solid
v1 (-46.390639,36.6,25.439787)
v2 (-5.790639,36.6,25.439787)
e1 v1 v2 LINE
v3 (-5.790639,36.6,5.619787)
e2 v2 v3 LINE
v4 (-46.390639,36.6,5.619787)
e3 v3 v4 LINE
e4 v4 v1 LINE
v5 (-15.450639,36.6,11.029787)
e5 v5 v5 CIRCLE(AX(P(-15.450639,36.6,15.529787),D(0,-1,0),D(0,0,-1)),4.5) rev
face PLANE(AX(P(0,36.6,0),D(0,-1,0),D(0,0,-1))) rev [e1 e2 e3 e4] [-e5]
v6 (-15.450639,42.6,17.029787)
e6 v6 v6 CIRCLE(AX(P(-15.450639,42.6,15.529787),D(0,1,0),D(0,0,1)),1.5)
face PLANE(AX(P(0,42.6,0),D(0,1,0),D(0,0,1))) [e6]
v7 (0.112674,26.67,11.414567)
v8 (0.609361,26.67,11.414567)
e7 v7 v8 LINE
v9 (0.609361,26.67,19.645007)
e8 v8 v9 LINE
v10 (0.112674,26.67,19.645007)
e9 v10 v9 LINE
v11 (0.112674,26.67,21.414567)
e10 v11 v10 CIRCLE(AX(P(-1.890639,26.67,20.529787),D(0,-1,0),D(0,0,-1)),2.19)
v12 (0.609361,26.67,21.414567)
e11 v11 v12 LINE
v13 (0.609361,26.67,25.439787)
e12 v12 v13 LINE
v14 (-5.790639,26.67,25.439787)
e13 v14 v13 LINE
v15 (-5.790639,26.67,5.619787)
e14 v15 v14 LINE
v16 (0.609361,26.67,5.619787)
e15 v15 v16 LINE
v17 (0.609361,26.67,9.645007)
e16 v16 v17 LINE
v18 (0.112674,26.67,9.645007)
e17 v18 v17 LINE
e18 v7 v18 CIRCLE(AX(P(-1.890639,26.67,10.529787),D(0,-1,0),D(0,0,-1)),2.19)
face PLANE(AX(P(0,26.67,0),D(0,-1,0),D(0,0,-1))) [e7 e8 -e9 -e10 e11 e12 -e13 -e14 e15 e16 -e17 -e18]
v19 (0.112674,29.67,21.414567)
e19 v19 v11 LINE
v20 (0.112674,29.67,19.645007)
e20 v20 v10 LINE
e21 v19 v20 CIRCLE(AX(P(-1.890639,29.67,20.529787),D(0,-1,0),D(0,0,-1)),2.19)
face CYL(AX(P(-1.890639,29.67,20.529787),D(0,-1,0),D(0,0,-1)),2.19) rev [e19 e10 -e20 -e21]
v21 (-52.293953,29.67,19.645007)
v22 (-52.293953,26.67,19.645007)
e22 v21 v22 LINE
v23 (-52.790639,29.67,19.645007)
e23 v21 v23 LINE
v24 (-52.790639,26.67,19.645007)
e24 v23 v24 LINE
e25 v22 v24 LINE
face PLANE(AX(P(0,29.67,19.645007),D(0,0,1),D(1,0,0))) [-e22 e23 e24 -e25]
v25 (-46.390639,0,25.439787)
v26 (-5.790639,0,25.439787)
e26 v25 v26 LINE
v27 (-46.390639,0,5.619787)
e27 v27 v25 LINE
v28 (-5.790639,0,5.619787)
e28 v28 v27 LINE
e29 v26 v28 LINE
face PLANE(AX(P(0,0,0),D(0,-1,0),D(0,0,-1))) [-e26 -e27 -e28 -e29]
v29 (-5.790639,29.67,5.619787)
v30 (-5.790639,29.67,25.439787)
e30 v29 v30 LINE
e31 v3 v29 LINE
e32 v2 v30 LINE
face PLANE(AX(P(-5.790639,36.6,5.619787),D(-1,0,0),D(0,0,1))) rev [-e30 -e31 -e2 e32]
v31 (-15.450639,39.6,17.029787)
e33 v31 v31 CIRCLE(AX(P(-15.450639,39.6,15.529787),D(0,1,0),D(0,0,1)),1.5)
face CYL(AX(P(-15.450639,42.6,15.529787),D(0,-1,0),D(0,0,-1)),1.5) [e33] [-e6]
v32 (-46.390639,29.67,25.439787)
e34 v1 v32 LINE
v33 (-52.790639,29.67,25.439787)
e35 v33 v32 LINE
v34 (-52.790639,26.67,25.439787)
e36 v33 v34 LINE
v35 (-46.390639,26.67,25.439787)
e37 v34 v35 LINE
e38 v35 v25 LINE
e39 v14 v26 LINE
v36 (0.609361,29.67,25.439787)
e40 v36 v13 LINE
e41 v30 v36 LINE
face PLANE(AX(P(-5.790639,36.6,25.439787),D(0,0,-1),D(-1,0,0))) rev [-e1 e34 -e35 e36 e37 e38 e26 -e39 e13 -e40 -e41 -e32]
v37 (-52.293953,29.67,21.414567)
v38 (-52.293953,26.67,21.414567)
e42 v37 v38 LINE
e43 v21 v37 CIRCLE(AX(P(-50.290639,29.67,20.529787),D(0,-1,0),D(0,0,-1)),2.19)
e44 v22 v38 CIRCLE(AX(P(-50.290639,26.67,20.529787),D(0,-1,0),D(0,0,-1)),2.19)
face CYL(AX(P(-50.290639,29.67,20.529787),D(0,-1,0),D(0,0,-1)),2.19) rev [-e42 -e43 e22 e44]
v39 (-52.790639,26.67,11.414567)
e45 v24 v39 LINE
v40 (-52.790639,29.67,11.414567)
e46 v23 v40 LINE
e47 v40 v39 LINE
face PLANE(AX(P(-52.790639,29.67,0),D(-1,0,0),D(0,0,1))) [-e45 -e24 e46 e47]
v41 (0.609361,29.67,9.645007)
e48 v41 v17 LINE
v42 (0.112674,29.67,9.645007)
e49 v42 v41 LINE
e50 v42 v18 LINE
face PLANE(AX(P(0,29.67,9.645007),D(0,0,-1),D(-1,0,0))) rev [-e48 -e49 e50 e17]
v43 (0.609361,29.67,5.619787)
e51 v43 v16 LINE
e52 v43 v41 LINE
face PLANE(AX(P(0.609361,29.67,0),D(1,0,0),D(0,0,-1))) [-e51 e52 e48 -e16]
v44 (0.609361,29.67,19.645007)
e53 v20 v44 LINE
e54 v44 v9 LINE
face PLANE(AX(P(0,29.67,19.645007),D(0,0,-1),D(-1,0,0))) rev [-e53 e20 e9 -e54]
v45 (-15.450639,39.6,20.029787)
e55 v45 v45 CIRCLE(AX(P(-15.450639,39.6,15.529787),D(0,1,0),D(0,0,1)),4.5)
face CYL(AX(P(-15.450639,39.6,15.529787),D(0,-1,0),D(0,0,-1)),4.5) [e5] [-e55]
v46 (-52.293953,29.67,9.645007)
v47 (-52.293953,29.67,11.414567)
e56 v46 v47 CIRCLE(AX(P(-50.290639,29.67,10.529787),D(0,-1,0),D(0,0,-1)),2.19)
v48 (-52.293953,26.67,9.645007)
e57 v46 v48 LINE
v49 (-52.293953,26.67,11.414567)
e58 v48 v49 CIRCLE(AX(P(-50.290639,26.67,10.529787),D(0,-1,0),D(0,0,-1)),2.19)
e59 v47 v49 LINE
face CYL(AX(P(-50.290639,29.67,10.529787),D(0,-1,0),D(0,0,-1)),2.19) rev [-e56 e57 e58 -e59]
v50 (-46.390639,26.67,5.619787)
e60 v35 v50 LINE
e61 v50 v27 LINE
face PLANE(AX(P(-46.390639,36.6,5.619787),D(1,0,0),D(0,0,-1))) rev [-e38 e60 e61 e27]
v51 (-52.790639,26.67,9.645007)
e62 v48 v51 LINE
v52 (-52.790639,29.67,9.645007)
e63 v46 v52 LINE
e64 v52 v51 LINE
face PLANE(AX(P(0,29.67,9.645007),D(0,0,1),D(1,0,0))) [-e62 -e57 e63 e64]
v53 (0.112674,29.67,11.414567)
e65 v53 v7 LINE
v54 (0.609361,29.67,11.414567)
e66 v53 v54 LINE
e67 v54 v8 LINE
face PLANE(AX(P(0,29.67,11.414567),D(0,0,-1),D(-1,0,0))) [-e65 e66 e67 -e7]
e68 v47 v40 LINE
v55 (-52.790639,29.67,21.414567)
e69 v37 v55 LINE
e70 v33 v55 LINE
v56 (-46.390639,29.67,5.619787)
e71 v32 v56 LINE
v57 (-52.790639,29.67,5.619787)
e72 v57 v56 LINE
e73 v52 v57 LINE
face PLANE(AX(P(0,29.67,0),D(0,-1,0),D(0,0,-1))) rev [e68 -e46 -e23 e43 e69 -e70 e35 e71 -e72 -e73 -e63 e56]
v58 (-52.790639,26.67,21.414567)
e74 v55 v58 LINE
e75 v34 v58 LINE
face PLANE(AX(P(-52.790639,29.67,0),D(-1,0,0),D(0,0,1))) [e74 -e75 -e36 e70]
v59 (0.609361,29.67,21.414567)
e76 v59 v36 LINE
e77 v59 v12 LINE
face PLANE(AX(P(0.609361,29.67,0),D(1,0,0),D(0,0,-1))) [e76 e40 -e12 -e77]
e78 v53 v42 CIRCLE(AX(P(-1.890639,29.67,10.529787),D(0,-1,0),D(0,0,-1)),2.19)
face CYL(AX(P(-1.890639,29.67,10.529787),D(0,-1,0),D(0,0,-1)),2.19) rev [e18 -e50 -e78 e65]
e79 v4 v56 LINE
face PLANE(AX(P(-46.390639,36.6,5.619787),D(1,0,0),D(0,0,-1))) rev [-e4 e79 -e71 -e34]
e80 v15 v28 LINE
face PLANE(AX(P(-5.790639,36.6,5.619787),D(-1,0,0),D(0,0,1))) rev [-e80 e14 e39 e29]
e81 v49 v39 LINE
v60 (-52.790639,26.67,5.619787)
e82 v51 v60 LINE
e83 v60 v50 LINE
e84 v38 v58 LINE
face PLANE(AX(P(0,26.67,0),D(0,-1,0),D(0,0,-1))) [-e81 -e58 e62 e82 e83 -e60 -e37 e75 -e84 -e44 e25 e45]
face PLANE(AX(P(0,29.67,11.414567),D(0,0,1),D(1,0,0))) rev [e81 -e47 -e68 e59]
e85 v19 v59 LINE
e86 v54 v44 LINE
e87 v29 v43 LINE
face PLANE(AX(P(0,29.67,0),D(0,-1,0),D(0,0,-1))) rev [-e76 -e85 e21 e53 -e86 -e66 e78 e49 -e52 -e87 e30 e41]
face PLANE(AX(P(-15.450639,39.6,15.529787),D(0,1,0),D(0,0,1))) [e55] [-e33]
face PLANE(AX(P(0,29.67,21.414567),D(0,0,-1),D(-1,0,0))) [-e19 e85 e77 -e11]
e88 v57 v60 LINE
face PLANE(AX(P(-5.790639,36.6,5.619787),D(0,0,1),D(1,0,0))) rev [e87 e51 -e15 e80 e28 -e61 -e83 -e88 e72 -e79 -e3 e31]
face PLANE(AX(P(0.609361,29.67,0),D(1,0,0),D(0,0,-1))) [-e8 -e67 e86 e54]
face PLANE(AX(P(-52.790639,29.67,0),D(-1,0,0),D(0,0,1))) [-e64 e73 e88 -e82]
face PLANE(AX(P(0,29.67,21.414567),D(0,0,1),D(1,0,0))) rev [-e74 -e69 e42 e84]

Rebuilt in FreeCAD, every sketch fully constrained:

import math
import FreeCAD as App
import Part
import Sketcher
from FreeCAD import Vector


def add_polygon(sketch, points):
    """Adds a closed chain of lines whose ends are joined by coincident constraints."""
    first, n = sketch.GeometryCount, len(points)
    for a, b in zip(points, points[1:] + points[:1]):
        sketch.addGeometry(Part.LineSegment(App.Vector(*a, 0), App.Vector(*b, 0)), False)
    for i in range(n):
        sketch.addConstraint(Sketcher.Constraint("Coincident", first + i, 2, first + (i + 1) % n, 1))

doc = App.newDocument("Part")
body = doc.addObject("PartDesign::Body", "Body")

# Sketch on XZ plane
sketch1 = body.newObject("Sketcher::SketchObject", "Sketch")
sketch1.AttachmentSupport = (doc.getObject("XZ_Plane"), [""])
sketch1.MapMode = "FlatFace"
add_polygon(sketch1, [(-46, 6), (-46, 25), (-6, 25), (-6, 6)])  # lines 0-3
sketch1.addConstraint([
    Sketcher.Constraint("Vertical", 0),
    Sketcher.Constraint("Horizontal", 1),
    Sketcher.Constraint("Vertical", 2),
    Sketcher.Constraint("Horizontal", 3),
    Sketcher.Constraint("DistanceX", 1, 1, 1, 2, 40.6),
    Sketcher.Constraint("DistanceY", 0, 1, 0, 2, 19.82),
    Sketcher.Constraint("DistanceX", 0, 2, -1, 1, 46.390639),
    Sketcher.Constraint("DistanceY", -1, 1, 0, 2, 25.439787),
])
pad1 = body.newObject("PartDesign::Pad", "Pad")
pad1.Profile = sketch1
pad1.Length = 36.6
pad1.Reversed = True

# Sketch on XZ plane
sketch2 = body.newObject("Sketcher::SketchObject", "Sketch001")
sketch2.AttachmentSupport = (doc.getObject("XZ_Plane"), [""])
sketch2.MapMode = "FlatFace"
sketch2.AttachmentOffset = App.Placement(Vector(0, 0, -36.6), App.Rotation())
sketch2.addGeometry([
    Part.ArcOfCircle(Part.Circle(Vector(-15.5, 15.5, 0), Vector(0, 0, 1), 1.5), math.radians(-90), math.radians(0)),
    Part.ArcOfCircle(Part.Circle(Vector(-15.5, 15.5, 0), Vector(0, 0, 1), 1.5), math.radians(90), math.radians(270)),
    Part.ArcOfCircle(Part.Circle(Vector(-15.5, 15.5, 0), Vector(0, 0, 1), 1.5), math.radians(0), math.radians(90)),
], False)
sketch2.addConstraint([
    Sketcher.Constraint("Tangent", 0, 1, 1, 2),
    Sketcher.Constraint("Tangent", 1, 1, 2, 2),
    Sketcher.Constraint("Tangent", 2, 1, 0, 2),
    Sketcher.Constraint("Horizontal", 1, 3, 2, 1),
    Sketcher.Constraint("Vertical", 2, 3, 0, 1),
    Sketcher.Constraint("Vertical", 0, 1, 1, 1),
    Sketcher.Constraint("Radius", 0, 1.5),
    Sketcher.Constraint("DistanceX", 0, 3, -1, 1, 15.450639),
    Sketcher.Constraint("DistanceY", -1, 1, 0, 3, 15.529787),
])
pad2 = body.newObject("PartDesign::Pad", "Pad001")
pad2.Profile = sketch2
pad2.Length = 6
pad2.Reversed = True

# Sketch on XZ plane
sketch3 = body.newObject("Sketcher::SketchObject", "Sketch002")
sketch3.AttachmentSupport = (doc.getObject("XZ_Plane"), [""])
sketch3.MapMode = "FlatFace"
sketch3.AttachmentOffset = App.Placement(Vector(0, 0, -26.67), App.Rotation())
sketch3.addGeometry([
    Part.LineSegment(Vector(-52.29, 19.65, 0), Vector(-52.79, 19.65, 0)),  # 0
    Part.LineSegment(Vector(-52.79, 19.65, 0), Vector(-52.79, 11.41, 0)),  # 1
    Part.LineSegment(Vector(-52.79, 11.41, 0), Vector(-52.29, 11.41, 0)),  # 2
    Part.ArcOfCircle(Part.Circle(Vector(-50.29, 10.53, 0), Vector(0, 0, 1), 2.19), math.radians(90), math.radians(156)),  # 3
    Part.ArcOfCircle(Part.Circle(Vector(-50.29, 10.53, 0), Vector(0, 0, 1), 2.19), math.radians(0), math.radians(90)),  # 4
    Part.ArcOfCircle(Part.Circle(Vector(-50.29, 10.53, 0), Vector(0, 0, 1), 2.19), math.radians(-156), math.radians(0)),  # 5
    Part.LineSegment(Vector(-52.29, 9.65, 0), Vector(-52.79, 9.65, 0)),  # 6
    Part.LineSegment(Vector(-52.79, 9.65, 0), Vector(-52.79, 5.62, 0)),  # 7
    Part.LineSegment(Vector(-52.79, 5.62, 0), Vector(-46.39, 5.62, 0)),  # 8
    Part.LineSegment(Vector(-46.39, 5.62, 0), Vector(-46.39, 25.44, 0)),  # 9
    Part.LineSegment(Vector(-46.39, 25.44, 0), Vector(-52.79, 25.44, 0)),  # 10
    Part.LineSegment(Vector(-52.79, 25.44, 0), Vector(-52.79, 21.41, 0)),  # 11
    Part.LineSegment(Vector(-52.79, 21.41, 0), Vector(-52.29, 21.41, 0)),  # 12
    Part.ArcOfCircle(Part.Circle(Vector(-50.29, 20.53, 0), Vector(0, 0, 1), 2.19), math.radians(0), math.radians(156)),  # 13
    Part.ArcOfCircle(Part.Circle(Vector(-50.29, 20.53, 0), Vector(0, 0, 1), 2.19), math.radians(-90), math.radians(0)),  # 14
    Part.ArcOfCircle(Part.Circle(Vector(-50.29, 20.53, 0), Vector(0, 0, 1), 2.19), math.radians(-156), math.radians(-90)),  # 15
    Part.ArcOfCircle(Part.Circle(Vector(-1.89, 10.53, 0), Vector(0, 0, 1), 2.19), math.radians(90), math.radians(180)),  # 16
    Part.ArcOfCircle(Part.Circle(Vector(-1.89, 10.53, 0), Vector(0, 0, 1), 2.19), math.radians(24), math.radians(90)),  # 17
    Part.LineSegment(Vector(0.11, 11.41, 0), Vector(0.61, 11.41, 0)),  # 18
    Part.LineSegment(Vector(0.61, 11.41, 0), Vector(0.61, 19.65, 0)),  # 19
    Part.LineSegment(Vector(0.61, 19.65, 0), Vector(0.11, 19.65, 0)),  # 20
    Part.ArcOfCircle(Part.Circle(Vector(-1.89, 20.53, 0), Vector(0, 0, 1), 2.19), math.radians(-90), math.radians(-24)),  # 21
    Part.ArcOfCircle(Part.Circle(Vector(-1.89, 20.53, 0), Vector(0, 0, 1), 2.19), math.radians(-180), math.radians(-90)),  # 22
    Part.ArcOfCircle(Part.Circle(Vector(-1.89, 20.53, 0), Vector(0, 0, 1), 2.19), math.radians(24), math.radians(180)),  # 23
    Part.LineSegment(Vector(0.11, 21.41, 0), Vector(0.61, 21.41, 0)),  # 24
    Part.LineSegment(Vector(0.61, 21.41, 0), Vector(0.61, 25.44, 0)),  # 25
    Part.LineSegment(Vector(0.61, 25.44, 0), Vector(-5.79, 25.44, 0)),  # 26
    Part.LineSegment(Vector(-5.79, 25.44, 0), Vector(-5.79, 5.62, 0)),  # 27
    Part.LineSegment(Vector(-5.79, 5.62, 0), Vector(0.61, 5.62, 0)),  # 28
    Part.LineSegment(Vector(0.61, 5.62, 0), Vector(0.61, 9.65, 0)),  # 29
    Part.LineSegment(Vector(0.61, 9.65, 0), Vector(0.11, 9.65, 0)),  # 30
    Part.ArcOfCircle(Part.Circle(Vector(-1.89, 10.53, 0), Vector(0, 0, 1), 2.19), math.radians(-180), math.radians(-24)),  # 31
], False)
sketch3.addConstraint([
    Sketcher.Constraint("Coincident", 0, 2, 1, 1),
    Sketcher.Constraint("Coincident", 1, 2, 2, 1),
    Sketcher.Constraint("Coincident", 2, 2, 3, 2),
    Sketcher.Constraint("Tangent", 3, 1, 4, 2),
    Sketcher.Constraint("Tangent", 4, 1, 5, 2),
    Sketcher.Constraint("Coincident", 5, 1, 6, 1),
    Sketcher.Constraint("Coincident", 6, 2, 7, 1),
    Sketcher.Constraint("Coincident", 7, 2, 8, 1),
    Sketcher.Constraint("Coincident", 8, 2, 9, 1),
    Sketcher.Constraint("Coincident", 9, 2, 10, 1),
    Sketcher.Constraint("Coincident", 10, 2, 11, 1),
    Sketcher.Constraint("Coincident", 11, 2, 12, 1),
    Sketcher.Constraint("Coincident", 12, 2, 13, 2),
    Sketcher.Constraint("Tangent", 13, 1, 14, 2),
    Sketcher.Constraint("Tangent", 14, 1, 15, 2),
    Sketcher.Constraint("Coincident", 15, 1, 0, 1),
    Sketcher.Constraint("Tangent", 16, 1, 17, 2),
    Sketcher.Constraint("Coincident", 17, 1, 18, 1),
    Sketcher.Constraint("Coincident", 18, 2, 19, 1),
    Sketcher.Constraint("Coincident", 19, 2, 20, 1),
    Sketcher.Constraint("Coincident", 20, 2, 21, 2),
    Sketcher.Constraint("Tangent", 21, 1, 22, 2),
    Sketcher.Constraint("Tangent", 22, 1, 23, 2),
    Sketcher.Constraint("Coincident", 23, 1, 24, 1),
    Sketcher.Constraint("Coincident", 24, 2, 25, 1),
    Sketcher.Constraint("Coincident", 25, 2, 26, 1),
    Sketcher.Constraint("Coincident", 26, 2, 27, 1),
    Sketcher.Constraint("Coincident", 27, 2, 28, 1),
    Sketcher.Constraint("Coincident", 28, 2, 29, 1),
    Sketcher.Constraint("Coincident", 29, 2, 30, 1),
    Sketcher.Constraint("Coincident", 30, 2, 31, 2),
    Sketcher.Constraint("Tangent", 31, 1, 16, 2),
    Sketcher.Constraint("Horizontal", 0),
    Sketcher.Constraint("Vertical", 1),
    Sketcher.Constraint("Horizontal", 2),
    Sketcher.Constraint("Horizontal", 6),
    Sketcher.Constraint("Vertical", 7),
    Sketcher.Constraint("Horizontal", 8),
    Sketcher.Constraint("Vertical", 9),
    Sketcher.Constraint("Horizontal", 10),
    Sketcher.Constraint("Vertical", 11),
    Sketcher.Constraint("Horizontal", 12),
    Sketcher.Constraint("Horizontal", 18),
    Sketcher.Constraint("Vertical", 19),
    Sketcher.Constraint("Horizontal", 20),
    Sketcher.Constraint("Horizontal", 24),
    Sketcher.Constraint("Vertical", 25),
    Sketcher.Constraint("Horizontal", 26),
    Sketcher.Constraint("Vertical", 27),
    Sketcher.Constraint("Horizontal", 28),
    Sketcher.Constraint("Vertical", 29),
    Sketcher.Constraint("Horizontal", 30),
    Sketcher.Constraint("Coincident", 5, 3, 3, 3),
    Sketcher.Constraint("Coincident", 15, 3, 13, 3),
    Sketcher.Constraint("Coincident", 23, 3, 21, 3),
    Sketcher.Constraint("Equal", 5, 13),
    Sketcher.Constraint("Equal", 15, 16),
    Sketcher.Constraint("Equal", 16, 17),
    Sketcher.Constraint("Equal", 17, 21),
    Sketcher.Constraint("Equal", 23, 31),
    Sketcher.Constraint("Horizontal", 5, 3, 16, 3),
    Sketcher.Constraint("Horizontal", 15, 3, 21, 3),
    Sketcher.Constraint("Horizontal", 31, 3, 4, 1),
    Sketcher.Constraint("Horizontal", 23, 3, 13, 1),
    Sketcher.Constraint("Horizontal", 2, 2, 17, 1),
    Sketcher.Constraint("Horizontal", 15, 1, 19, 2),
    Sketcher.Constraint("Horizontal", 13, 1, 22, 1),
    Sketcher.Constraint("Horizontal", 12, 2, 23, 1),
    Sketcher.Constraint("Horizontal", 10, 2, 25, 2),
    Sketcher.Constraint("Horizontal", 8, 2, 27, 2),
    Sketcher.Constraint("Horizontal", 6, 2, 29, 2),
    Sketcher.Constraint("Horizontal", 4, 1, 31, 1),
    Sketcher.Constraint("Vertical", 5, 3, 13, 3),
    Sketcher.Constraint("Vertical", 17, 3, 21, 3),
    Sketcher.Constraint("Vertical", 15, 3, 3, 1),
    Sketcher.Constraint("Vertical", 2, 2, 5, 1),
    Sketcher.Constraint("Vertical", 1, 2, 6, 2),
    Sketcher.Constraint("Vertical", 7, 2, 10, 2),
    Sketcher.Constraint("Vertical", 5, 1, 12, 2),
    Sketcher.Constraint("Vertical", 3, 1, 14, 1),
    Sketcher.Constraint("Vertical", 12, 2, 15, 1),
    Sketcher.Constraint("Vertical", 31, 3, 16, 1),
    Sketcher.Constraint("Vertical", 16, 1, 21, 1),
    Sketcher.Constraint("Vertical", 19, 2, 24, 2),
    Sketcher.Constraint("Vertical", 25, 2, 28, 2),
    Sketcher.Constraint("Equal", 12, 18),
    Sketcher.Constraint("Equal", 10, 26),
    Sketcher.Constraint("Equal", 7, 11),
    Sketcher.Constraint("Radius", 3, 2.19),
    Sketcher.Constraint("DistanceX", 8, 1, 8, 2, 6.4),
    Sketcher.Constraint("DistanceY", 4, 3, 13, 3, 10.0),
    Sketcher.Constraint("DistanceY", 9, 1, 9, 2, 19.82),
    Sketcher.Constraint("DistanceX", 4, 3, 16, 3, 48.4),
    Sketcher.Constraint("DistanceX", 0, 2, 14, 3, 2.5),
    Sketcher.Constraint("DistanceY", 1, 2, 1, 1, 8.23044),
    Sketcher.Constraint("DistanceX", 3, 3, -1, 1, 50.290639),
    Sketcher.Constraint("DistanceY", -1, 1, 3, 3, 10.529787),
])
pad3 = body.newObject("PartDesign::Pad", "Pad002")
pad3.Profile = sketch3
pad3.Length = 3
pad3.Reversed = True

# Sketch on XZ plane
sketch4 = body.newObject("Sketcher::SketchObject", "Sketch003")
sketch4.AttachmentSupport = (doc.getObject("XZ_Plane"), [""])
sketch4.MapMode = "FlatFace"
sketch4.AttachmentOffset = App.Placement(Vector(0, 0, -36.6), App.Rotation())
sketch4.addGeometry([
    Part.Circle(Vector(-15.5, 15.5, 0), Vector(0, 0, 1), 4.5),
    Part.Circle(Vector(-15.5, 15.5, 0), Vector(0, 0, 1), 1.5),
], False)
sketch4.addConstraint([
    Sketcher.Constraint("Coincident", 1, 3, 0, 3),
    Sketcher.Constraint("Diameter", 0, 9.0),
    Sketcher.Constraint("Diameter", 1, 3.0),
    Sketcher.Constraint("DistanceX", 0, 3, -1, 1, 15.450639),
    Sketcher.Constraint("DistanceY", -1, 1, 0, 3, 15.529787),
])
pad4 = body.newObject("PartDesign::Pad", "Pad003")
pad4.Profile = sketch4
pad4.Length = 3
pad4.Reversed = True

doc.recompute()
